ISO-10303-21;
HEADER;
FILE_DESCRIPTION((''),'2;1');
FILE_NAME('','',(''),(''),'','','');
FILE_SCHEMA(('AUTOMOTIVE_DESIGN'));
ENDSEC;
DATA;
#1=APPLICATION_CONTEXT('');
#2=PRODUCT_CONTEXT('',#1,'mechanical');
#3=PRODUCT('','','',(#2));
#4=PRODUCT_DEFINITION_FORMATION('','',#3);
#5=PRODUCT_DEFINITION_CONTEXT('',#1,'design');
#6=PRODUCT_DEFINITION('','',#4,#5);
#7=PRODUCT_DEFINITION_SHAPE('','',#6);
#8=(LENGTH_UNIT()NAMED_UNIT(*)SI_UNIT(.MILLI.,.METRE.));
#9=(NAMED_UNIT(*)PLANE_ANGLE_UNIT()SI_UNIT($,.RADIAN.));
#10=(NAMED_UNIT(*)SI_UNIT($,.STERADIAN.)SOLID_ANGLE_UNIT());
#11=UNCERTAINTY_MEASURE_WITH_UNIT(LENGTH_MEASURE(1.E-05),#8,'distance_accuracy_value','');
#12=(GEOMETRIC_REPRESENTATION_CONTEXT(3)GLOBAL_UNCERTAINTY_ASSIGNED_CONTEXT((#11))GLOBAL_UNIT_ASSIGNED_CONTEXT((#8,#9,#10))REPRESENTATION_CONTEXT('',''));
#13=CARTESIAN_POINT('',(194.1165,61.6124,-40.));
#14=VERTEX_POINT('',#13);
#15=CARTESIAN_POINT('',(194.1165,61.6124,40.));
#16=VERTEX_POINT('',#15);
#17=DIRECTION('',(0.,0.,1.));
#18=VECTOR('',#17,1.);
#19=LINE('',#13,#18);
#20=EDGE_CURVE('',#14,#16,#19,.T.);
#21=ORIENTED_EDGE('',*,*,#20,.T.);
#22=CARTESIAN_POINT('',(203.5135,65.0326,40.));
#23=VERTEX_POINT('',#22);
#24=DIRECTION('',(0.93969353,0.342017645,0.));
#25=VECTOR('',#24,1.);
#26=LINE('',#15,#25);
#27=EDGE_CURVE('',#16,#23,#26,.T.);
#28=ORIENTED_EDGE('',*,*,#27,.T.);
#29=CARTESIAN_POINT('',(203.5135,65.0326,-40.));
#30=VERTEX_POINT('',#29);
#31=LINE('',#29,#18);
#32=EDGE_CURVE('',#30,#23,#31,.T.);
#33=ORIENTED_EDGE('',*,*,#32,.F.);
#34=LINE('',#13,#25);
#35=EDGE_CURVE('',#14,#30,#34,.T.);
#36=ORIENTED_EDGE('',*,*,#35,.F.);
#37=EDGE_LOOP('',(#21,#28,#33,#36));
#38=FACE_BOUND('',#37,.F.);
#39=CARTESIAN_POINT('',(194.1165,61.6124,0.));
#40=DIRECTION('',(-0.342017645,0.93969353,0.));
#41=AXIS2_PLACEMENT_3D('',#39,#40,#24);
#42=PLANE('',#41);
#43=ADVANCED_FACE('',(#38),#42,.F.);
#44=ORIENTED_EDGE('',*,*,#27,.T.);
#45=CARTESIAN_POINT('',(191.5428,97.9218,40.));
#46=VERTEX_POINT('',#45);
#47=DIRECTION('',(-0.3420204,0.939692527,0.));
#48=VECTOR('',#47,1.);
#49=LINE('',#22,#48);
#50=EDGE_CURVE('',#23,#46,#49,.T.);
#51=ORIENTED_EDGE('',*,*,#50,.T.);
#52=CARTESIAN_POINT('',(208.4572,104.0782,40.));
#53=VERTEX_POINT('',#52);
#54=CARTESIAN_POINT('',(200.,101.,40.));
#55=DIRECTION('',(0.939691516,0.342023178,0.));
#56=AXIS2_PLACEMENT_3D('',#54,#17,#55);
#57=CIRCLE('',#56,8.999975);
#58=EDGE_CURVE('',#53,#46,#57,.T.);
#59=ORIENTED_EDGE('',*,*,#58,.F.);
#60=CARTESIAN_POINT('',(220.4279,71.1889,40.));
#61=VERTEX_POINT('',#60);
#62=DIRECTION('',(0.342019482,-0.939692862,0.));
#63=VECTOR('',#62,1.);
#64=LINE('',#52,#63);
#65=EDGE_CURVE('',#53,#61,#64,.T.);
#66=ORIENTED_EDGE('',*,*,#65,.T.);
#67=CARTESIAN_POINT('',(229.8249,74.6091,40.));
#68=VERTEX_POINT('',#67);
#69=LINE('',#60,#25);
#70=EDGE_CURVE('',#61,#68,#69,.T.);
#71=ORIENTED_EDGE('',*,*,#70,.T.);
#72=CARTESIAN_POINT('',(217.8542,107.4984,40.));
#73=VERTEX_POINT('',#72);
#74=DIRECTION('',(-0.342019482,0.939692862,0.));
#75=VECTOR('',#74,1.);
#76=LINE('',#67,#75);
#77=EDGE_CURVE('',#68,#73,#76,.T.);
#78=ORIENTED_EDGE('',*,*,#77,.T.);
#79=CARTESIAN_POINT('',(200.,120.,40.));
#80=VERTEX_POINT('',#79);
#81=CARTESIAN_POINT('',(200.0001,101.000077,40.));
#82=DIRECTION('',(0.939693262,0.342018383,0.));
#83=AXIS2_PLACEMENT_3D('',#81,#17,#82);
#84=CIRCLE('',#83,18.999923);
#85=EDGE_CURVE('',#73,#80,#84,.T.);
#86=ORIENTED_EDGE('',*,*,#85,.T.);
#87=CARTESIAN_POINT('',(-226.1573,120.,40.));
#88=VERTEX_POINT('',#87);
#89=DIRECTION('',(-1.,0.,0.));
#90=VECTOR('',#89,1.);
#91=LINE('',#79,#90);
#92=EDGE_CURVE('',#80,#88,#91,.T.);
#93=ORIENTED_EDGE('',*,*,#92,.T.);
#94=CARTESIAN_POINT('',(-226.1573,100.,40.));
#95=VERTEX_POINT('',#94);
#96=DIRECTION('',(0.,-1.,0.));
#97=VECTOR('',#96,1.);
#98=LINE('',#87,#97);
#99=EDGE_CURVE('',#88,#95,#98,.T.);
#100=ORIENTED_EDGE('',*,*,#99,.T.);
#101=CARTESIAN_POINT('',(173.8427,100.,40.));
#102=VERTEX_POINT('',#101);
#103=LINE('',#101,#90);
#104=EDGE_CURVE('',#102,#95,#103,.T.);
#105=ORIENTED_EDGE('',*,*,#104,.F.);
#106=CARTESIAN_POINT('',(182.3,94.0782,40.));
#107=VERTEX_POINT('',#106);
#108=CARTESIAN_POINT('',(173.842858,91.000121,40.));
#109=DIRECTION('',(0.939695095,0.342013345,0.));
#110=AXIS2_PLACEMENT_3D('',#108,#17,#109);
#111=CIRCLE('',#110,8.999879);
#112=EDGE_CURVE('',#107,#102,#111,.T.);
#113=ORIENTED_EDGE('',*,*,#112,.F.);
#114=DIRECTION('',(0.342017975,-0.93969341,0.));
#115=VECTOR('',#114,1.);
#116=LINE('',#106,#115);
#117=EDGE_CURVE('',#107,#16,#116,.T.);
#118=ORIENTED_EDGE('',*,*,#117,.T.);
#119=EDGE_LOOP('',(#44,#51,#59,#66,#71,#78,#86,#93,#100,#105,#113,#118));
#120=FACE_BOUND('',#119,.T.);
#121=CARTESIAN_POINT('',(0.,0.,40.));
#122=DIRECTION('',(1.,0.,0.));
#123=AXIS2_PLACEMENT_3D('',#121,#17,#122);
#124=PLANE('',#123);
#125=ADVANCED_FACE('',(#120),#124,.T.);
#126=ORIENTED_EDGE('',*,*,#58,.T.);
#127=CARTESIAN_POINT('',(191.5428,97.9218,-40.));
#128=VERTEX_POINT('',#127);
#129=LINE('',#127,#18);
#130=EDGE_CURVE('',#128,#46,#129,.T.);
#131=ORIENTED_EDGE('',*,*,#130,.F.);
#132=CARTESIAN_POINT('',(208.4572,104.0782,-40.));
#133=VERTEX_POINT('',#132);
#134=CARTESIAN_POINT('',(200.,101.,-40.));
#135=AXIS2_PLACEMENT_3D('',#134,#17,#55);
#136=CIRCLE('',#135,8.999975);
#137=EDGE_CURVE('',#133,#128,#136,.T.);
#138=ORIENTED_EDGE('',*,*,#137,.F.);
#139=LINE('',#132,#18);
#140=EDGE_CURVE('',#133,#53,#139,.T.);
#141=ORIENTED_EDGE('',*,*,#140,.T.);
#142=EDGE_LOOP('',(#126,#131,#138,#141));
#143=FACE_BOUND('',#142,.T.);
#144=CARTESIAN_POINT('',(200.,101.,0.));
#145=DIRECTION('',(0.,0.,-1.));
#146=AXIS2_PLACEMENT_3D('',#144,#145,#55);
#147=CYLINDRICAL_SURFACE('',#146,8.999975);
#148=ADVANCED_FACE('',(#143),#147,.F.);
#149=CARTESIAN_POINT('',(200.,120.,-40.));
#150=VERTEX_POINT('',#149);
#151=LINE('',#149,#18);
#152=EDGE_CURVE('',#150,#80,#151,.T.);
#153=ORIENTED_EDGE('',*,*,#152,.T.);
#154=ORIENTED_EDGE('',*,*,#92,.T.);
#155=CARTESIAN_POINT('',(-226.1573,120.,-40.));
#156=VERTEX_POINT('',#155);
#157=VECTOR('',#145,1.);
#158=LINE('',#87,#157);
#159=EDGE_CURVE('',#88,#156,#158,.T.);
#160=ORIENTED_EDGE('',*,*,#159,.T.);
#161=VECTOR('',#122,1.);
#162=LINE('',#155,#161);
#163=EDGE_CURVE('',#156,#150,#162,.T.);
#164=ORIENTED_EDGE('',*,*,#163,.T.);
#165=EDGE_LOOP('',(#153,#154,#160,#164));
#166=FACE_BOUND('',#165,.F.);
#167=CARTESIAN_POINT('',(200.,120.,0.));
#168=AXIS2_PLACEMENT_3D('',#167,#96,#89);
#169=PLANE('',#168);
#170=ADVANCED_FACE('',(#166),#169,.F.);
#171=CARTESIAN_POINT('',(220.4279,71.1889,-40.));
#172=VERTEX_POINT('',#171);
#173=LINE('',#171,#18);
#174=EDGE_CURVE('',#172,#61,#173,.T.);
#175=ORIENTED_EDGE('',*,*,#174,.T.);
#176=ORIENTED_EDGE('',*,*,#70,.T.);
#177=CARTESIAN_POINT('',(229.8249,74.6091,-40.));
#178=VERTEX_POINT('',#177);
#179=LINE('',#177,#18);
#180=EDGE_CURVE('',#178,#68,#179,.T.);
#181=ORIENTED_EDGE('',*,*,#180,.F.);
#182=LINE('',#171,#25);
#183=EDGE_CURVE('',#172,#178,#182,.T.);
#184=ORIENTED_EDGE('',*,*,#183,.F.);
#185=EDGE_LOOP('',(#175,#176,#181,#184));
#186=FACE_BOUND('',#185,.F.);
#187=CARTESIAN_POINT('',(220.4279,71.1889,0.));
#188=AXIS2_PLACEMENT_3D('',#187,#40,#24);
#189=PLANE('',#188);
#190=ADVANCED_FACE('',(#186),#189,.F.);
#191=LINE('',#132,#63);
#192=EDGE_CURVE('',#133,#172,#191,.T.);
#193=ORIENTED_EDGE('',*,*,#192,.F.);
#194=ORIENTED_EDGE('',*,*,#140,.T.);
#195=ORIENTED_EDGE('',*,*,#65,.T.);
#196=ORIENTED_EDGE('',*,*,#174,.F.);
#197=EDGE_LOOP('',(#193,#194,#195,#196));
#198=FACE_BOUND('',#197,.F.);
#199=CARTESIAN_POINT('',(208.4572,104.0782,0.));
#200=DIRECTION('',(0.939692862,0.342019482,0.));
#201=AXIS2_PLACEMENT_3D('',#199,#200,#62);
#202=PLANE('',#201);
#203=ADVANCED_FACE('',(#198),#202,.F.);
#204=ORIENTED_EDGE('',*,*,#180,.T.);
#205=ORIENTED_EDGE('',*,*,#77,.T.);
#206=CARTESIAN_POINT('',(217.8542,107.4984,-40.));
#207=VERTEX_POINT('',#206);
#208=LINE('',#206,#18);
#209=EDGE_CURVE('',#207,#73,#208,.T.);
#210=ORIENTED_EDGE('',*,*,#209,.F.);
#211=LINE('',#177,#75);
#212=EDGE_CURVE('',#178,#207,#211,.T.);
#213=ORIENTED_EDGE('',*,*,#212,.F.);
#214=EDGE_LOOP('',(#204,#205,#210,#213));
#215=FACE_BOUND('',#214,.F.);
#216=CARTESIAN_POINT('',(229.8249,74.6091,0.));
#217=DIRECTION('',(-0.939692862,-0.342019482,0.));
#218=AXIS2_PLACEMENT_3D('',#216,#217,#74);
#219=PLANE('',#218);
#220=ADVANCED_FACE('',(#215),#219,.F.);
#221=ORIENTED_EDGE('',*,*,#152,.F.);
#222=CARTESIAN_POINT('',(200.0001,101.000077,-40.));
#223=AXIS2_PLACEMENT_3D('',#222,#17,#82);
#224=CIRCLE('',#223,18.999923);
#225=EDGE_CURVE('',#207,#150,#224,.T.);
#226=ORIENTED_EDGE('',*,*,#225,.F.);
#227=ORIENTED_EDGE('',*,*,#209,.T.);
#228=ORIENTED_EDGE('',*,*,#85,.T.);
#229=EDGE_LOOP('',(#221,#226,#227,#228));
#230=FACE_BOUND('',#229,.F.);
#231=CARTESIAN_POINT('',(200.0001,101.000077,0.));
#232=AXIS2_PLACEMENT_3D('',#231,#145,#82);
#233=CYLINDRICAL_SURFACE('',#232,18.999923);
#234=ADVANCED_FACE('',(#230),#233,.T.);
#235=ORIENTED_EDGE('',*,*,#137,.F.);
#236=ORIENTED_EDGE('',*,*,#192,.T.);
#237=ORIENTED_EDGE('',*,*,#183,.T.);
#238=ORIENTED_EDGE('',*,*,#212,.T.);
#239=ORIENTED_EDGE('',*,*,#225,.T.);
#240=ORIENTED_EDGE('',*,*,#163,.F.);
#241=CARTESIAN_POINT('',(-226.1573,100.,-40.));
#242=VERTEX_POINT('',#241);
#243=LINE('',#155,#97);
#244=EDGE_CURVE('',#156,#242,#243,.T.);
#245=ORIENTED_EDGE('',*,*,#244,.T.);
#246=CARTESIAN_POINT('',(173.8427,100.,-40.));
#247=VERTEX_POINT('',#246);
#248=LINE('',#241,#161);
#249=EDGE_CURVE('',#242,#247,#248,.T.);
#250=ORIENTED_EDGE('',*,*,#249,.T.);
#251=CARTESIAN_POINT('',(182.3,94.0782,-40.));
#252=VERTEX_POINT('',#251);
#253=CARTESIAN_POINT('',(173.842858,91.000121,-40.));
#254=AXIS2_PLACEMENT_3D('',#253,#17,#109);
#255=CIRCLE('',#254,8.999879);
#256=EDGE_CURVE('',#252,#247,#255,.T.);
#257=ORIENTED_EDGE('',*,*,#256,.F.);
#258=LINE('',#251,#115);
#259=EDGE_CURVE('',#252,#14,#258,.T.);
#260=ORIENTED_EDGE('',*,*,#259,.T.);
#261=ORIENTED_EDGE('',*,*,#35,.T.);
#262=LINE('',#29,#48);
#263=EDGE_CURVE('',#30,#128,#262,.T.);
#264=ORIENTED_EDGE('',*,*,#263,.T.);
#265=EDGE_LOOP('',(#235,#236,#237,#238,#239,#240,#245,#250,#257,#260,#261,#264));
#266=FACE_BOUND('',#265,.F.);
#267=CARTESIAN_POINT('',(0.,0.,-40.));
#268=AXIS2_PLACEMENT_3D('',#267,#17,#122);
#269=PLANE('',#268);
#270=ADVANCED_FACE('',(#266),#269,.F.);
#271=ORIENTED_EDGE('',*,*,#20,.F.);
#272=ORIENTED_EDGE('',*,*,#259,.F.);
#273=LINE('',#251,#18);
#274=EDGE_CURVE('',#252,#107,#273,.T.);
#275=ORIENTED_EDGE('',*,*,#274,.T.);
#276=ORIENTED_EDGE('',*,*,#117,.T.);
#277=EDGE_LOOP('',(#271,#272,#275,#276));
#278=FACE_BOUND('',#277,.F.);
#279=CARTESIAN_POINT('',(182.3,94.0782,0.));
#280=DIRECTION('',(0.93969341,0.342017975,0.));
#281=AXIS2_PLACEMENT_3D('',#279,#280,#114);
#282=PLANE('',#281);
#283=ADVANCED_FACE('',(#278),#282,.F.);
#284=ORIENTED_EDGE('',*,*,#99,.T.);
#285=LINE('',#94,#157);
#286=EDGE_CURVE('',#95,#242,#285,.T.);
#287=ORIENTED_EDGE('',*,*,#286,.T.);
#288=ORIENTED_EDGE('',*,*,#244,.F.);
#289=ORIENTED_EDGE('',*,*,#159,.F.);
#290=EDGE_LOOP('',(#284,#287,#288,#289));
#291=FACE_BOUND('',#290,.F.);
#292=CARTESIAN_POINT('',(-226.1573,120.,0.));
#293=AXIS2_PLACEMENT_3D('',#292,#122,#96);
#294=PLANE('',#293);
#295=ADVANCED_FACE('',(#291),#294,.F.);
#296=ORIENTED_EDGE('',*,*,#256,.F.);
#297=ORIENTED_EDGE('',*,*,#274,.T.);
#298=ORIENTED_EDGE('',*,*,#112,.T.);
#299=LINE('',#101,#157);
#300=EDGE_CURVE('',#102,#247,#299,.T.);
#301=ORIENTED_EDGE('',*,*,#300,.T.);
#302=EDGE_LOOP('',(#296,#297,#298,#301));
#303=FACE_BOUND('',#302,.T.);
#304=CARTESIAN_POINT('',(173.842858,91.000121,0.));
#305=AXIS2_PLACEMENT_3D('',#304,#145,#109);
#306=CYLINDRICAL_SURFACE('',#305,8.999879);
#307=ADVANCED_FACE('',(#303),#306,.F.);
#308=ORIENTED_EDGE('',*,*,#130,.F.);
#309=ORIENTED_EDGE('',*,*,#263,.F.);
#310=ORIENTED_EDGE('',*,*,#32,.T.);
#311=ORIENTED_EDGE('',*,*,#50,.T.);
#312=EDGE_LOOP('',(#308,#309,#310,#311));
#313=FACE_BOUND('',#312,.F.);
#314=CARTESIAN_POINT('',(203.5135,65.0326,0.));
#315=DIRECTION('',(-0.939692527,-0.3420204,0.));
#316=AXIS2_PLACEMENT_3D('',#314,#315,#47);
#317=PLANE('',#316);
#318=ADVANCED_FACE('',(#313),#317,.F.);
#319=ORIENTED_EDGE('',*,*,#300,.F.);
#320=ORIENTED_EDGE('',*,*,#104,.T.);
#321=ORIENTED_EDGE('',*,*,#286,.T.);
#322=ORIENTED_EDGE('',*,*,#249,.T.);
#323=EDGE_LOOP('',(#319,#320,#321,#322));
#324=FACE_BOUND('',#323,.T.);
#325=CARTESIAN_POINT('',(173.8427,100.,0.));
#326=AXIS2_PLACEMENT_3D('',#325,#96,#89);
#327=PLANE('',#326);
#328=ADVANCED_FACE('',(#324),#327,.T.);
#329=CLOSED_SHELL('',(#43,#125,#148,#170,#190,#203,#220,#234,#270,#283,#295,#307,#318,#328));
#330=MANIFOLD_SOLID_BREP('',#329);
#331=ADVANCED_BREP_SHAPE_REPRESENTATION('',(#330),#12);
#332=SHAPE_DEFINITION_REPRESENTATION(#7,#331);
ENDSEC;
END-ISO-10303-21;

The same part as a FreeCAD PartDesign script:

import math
import FreeCAD as App
import Part
import Sketcher
Q = App.Units.Quantity

doc = App.newDocument("Part")
body = doc.addObject("PartDesign::Body", "Body")

sketch1 = body.newObject("Sketcher::SketchObject", "Sketch")
sketch1.AttachmentSupport = (doc.getObject("XY_Plane"), [""])
sketch1.MapMode = "FlatFace"
sketch1.addGeometry(Part.ArcOfCircle(Part.Circle(App.Vector(174, 91, 0), App.Vector(0, 0, 1), 9), math.radians(20), math.radians(90)), False)
sketch1.addGeometry(Part.LineSegment(App.Vector(182, 94, 0), App.Vector(194, 62, 0)), False)
sketch1.addGeometry(Part.LineSegment(App.Vector(194, 62, 0), App.Vector(204, 65, 0)), False)
sketch1.addGeometry(Part.LineSegment(App.Vector(204, 65, 0), App.Vector(192, 98, 0)), False)
sketch1.addGeometry(Part.ArcOfCircle(Part.Circle(App.Vector(200, 101, 0), App.Vector(0, 0, 1), 9), math.radians(20), math.radians(200)), False)
sketch1.addGeometry(Part.LineSegment(App.Vector(208, 104, 0), App.Vector(220, 71, 0)), False)
sketch1.addGeometry(Part.LineSegment(App.Vector(220, 71, 0), App.Vector(230, 75, 0)), False)
sketch1.addGeometry(Part.LineSegment(App.Vector(230, 75, 0), App.Vector(218, 107, 0)), False)
sketch1.addGeometry(Part.ArcOfCircle(Part.Circle(App.Vector(200, 101, 0), App.Vector(0, 0, 1), 19), math.radians(20), math.radians(90)), False)
sketch1.addGeometry(Part.LineSegment(App.Vector(200, 120, 0), App.Vector(-226, 120, 0)), False)
sketch1.addGeometry(Part.LineSegment(App.Vector(-226, 120, 0), App.Vector(-226, 100, 0)), False)
sketch1.addGeometry(Part.LineSegment(App.Vector(-226, 100, 0), App.Vector(174, 100, 0)), False)
sketch1.addConstraint(Sketcher.Constraint("Tangent", 0, 1, 1, 1))
sketch1.addConstraint(Sketcher.Constraint("Coincident", 1, 2, 2, 1))
sketch1.addConstraint(Sketcher.Constraint("Coincident", 2, 2, 3, 1))
sketch1.addConstraint(Sketcher.Constraint("Tangent", 3, 2, 4, 2))
sketch1.addConstraint(Sketcher.Constraint("Tangent", 4, 1, 5, 1))
sketch1.addConstraint(Sketcher.Constraint("Coincident", 5, 2, 6, 1))
sketch1.addConstraint(Sketcher.Constraint("Coincident", 6, 2, 7, 1))
sketch1.addConstraint(Sketcher.Constraint("Tangent", 7, 2, 8, 1))
sketch1.addConstraint(Sketcher.Constraint("Tangent", 8, 2, 9, 1))
sketch1.addConstraint(Sketcher.Constraint("Coincident", 9, 2, 10, 1))
sketch1.addConstraint(Sketcher.Constraint("Coincident", 10, 2, 11, 1))
sketch1.addConstraint(Sketcher.Constraint("Tangent", 11, 2, 0, 2))
sketch1.addConstraint(Sketcher.Constraint("Horizontal", 9))
sketch1.addConstraint(Sketcher.Constraint("Vertical", 10))
sketch1.addConstraint(Sketcher.Constraint("Horizontal", 11))
sketch1.addConstraint(Sketcher.Constraint("Coincident", 8, 3, 4, 3))
sketch1.addConstraint(Sketcher.Constraint("Equal", 0, 4))
sketch1.addConstraint(Sketcher.Constraint("Perpendicular", 1, 2))
sketch1.addConstraint(Sketcher.Constraint("Perpendicular", 2, 3))
sketch1.addConstraint(Sketcher.Constraint("Parallel", 3, 5))
sketch1.addConstraint(Sketcher.Constraint("Perpendicular", 5, 6))
sketch1.addConstraint(Sketcher.Constraint("Perpendicular", 6, 7))
sketch1.addConstraint(Sketcher.Constraint("Equal", 3, 5))
sketch1.addConstraint(Sketcher.Constraint("Equal", 2, 6))
sketch1.addConstraint(Sketcher.Constraint("Radius", 0, 9.0))
sketch1.addConstraint(Sketcher.Constraint("DistanceX", 11, 1, 11, 2, 400.0))
sketch1.addConstraint(Sketcher.Constraint("DistanceY", 10, 2, 10, 1, 20.0))
sketch1.addConstraint(Sketcher.Constraint("Angle", 2, Q("19.9998 deg")))
sketch1.addConstraint(Sketcher.Constraint("Distance", 2, 10.0))
sketch1.addConstraint(Sketcher.Constraint("Distance", 3, 35.0))
sketch1.addConstraint(Sketcher.Constraint("DistanceX", -1, 1, 4, 3, 200.0))
sketch1.addConstraint(Sketcher.Constraint("DistanceY", -1, 1, 10, 2, 100.0))
pad1 = body.newObject("PartDesign::Pad", "Pad")
pad1.Profile = sketch1
pad1.Length = 80
pad1.Midplane = True

doc.recompute()
